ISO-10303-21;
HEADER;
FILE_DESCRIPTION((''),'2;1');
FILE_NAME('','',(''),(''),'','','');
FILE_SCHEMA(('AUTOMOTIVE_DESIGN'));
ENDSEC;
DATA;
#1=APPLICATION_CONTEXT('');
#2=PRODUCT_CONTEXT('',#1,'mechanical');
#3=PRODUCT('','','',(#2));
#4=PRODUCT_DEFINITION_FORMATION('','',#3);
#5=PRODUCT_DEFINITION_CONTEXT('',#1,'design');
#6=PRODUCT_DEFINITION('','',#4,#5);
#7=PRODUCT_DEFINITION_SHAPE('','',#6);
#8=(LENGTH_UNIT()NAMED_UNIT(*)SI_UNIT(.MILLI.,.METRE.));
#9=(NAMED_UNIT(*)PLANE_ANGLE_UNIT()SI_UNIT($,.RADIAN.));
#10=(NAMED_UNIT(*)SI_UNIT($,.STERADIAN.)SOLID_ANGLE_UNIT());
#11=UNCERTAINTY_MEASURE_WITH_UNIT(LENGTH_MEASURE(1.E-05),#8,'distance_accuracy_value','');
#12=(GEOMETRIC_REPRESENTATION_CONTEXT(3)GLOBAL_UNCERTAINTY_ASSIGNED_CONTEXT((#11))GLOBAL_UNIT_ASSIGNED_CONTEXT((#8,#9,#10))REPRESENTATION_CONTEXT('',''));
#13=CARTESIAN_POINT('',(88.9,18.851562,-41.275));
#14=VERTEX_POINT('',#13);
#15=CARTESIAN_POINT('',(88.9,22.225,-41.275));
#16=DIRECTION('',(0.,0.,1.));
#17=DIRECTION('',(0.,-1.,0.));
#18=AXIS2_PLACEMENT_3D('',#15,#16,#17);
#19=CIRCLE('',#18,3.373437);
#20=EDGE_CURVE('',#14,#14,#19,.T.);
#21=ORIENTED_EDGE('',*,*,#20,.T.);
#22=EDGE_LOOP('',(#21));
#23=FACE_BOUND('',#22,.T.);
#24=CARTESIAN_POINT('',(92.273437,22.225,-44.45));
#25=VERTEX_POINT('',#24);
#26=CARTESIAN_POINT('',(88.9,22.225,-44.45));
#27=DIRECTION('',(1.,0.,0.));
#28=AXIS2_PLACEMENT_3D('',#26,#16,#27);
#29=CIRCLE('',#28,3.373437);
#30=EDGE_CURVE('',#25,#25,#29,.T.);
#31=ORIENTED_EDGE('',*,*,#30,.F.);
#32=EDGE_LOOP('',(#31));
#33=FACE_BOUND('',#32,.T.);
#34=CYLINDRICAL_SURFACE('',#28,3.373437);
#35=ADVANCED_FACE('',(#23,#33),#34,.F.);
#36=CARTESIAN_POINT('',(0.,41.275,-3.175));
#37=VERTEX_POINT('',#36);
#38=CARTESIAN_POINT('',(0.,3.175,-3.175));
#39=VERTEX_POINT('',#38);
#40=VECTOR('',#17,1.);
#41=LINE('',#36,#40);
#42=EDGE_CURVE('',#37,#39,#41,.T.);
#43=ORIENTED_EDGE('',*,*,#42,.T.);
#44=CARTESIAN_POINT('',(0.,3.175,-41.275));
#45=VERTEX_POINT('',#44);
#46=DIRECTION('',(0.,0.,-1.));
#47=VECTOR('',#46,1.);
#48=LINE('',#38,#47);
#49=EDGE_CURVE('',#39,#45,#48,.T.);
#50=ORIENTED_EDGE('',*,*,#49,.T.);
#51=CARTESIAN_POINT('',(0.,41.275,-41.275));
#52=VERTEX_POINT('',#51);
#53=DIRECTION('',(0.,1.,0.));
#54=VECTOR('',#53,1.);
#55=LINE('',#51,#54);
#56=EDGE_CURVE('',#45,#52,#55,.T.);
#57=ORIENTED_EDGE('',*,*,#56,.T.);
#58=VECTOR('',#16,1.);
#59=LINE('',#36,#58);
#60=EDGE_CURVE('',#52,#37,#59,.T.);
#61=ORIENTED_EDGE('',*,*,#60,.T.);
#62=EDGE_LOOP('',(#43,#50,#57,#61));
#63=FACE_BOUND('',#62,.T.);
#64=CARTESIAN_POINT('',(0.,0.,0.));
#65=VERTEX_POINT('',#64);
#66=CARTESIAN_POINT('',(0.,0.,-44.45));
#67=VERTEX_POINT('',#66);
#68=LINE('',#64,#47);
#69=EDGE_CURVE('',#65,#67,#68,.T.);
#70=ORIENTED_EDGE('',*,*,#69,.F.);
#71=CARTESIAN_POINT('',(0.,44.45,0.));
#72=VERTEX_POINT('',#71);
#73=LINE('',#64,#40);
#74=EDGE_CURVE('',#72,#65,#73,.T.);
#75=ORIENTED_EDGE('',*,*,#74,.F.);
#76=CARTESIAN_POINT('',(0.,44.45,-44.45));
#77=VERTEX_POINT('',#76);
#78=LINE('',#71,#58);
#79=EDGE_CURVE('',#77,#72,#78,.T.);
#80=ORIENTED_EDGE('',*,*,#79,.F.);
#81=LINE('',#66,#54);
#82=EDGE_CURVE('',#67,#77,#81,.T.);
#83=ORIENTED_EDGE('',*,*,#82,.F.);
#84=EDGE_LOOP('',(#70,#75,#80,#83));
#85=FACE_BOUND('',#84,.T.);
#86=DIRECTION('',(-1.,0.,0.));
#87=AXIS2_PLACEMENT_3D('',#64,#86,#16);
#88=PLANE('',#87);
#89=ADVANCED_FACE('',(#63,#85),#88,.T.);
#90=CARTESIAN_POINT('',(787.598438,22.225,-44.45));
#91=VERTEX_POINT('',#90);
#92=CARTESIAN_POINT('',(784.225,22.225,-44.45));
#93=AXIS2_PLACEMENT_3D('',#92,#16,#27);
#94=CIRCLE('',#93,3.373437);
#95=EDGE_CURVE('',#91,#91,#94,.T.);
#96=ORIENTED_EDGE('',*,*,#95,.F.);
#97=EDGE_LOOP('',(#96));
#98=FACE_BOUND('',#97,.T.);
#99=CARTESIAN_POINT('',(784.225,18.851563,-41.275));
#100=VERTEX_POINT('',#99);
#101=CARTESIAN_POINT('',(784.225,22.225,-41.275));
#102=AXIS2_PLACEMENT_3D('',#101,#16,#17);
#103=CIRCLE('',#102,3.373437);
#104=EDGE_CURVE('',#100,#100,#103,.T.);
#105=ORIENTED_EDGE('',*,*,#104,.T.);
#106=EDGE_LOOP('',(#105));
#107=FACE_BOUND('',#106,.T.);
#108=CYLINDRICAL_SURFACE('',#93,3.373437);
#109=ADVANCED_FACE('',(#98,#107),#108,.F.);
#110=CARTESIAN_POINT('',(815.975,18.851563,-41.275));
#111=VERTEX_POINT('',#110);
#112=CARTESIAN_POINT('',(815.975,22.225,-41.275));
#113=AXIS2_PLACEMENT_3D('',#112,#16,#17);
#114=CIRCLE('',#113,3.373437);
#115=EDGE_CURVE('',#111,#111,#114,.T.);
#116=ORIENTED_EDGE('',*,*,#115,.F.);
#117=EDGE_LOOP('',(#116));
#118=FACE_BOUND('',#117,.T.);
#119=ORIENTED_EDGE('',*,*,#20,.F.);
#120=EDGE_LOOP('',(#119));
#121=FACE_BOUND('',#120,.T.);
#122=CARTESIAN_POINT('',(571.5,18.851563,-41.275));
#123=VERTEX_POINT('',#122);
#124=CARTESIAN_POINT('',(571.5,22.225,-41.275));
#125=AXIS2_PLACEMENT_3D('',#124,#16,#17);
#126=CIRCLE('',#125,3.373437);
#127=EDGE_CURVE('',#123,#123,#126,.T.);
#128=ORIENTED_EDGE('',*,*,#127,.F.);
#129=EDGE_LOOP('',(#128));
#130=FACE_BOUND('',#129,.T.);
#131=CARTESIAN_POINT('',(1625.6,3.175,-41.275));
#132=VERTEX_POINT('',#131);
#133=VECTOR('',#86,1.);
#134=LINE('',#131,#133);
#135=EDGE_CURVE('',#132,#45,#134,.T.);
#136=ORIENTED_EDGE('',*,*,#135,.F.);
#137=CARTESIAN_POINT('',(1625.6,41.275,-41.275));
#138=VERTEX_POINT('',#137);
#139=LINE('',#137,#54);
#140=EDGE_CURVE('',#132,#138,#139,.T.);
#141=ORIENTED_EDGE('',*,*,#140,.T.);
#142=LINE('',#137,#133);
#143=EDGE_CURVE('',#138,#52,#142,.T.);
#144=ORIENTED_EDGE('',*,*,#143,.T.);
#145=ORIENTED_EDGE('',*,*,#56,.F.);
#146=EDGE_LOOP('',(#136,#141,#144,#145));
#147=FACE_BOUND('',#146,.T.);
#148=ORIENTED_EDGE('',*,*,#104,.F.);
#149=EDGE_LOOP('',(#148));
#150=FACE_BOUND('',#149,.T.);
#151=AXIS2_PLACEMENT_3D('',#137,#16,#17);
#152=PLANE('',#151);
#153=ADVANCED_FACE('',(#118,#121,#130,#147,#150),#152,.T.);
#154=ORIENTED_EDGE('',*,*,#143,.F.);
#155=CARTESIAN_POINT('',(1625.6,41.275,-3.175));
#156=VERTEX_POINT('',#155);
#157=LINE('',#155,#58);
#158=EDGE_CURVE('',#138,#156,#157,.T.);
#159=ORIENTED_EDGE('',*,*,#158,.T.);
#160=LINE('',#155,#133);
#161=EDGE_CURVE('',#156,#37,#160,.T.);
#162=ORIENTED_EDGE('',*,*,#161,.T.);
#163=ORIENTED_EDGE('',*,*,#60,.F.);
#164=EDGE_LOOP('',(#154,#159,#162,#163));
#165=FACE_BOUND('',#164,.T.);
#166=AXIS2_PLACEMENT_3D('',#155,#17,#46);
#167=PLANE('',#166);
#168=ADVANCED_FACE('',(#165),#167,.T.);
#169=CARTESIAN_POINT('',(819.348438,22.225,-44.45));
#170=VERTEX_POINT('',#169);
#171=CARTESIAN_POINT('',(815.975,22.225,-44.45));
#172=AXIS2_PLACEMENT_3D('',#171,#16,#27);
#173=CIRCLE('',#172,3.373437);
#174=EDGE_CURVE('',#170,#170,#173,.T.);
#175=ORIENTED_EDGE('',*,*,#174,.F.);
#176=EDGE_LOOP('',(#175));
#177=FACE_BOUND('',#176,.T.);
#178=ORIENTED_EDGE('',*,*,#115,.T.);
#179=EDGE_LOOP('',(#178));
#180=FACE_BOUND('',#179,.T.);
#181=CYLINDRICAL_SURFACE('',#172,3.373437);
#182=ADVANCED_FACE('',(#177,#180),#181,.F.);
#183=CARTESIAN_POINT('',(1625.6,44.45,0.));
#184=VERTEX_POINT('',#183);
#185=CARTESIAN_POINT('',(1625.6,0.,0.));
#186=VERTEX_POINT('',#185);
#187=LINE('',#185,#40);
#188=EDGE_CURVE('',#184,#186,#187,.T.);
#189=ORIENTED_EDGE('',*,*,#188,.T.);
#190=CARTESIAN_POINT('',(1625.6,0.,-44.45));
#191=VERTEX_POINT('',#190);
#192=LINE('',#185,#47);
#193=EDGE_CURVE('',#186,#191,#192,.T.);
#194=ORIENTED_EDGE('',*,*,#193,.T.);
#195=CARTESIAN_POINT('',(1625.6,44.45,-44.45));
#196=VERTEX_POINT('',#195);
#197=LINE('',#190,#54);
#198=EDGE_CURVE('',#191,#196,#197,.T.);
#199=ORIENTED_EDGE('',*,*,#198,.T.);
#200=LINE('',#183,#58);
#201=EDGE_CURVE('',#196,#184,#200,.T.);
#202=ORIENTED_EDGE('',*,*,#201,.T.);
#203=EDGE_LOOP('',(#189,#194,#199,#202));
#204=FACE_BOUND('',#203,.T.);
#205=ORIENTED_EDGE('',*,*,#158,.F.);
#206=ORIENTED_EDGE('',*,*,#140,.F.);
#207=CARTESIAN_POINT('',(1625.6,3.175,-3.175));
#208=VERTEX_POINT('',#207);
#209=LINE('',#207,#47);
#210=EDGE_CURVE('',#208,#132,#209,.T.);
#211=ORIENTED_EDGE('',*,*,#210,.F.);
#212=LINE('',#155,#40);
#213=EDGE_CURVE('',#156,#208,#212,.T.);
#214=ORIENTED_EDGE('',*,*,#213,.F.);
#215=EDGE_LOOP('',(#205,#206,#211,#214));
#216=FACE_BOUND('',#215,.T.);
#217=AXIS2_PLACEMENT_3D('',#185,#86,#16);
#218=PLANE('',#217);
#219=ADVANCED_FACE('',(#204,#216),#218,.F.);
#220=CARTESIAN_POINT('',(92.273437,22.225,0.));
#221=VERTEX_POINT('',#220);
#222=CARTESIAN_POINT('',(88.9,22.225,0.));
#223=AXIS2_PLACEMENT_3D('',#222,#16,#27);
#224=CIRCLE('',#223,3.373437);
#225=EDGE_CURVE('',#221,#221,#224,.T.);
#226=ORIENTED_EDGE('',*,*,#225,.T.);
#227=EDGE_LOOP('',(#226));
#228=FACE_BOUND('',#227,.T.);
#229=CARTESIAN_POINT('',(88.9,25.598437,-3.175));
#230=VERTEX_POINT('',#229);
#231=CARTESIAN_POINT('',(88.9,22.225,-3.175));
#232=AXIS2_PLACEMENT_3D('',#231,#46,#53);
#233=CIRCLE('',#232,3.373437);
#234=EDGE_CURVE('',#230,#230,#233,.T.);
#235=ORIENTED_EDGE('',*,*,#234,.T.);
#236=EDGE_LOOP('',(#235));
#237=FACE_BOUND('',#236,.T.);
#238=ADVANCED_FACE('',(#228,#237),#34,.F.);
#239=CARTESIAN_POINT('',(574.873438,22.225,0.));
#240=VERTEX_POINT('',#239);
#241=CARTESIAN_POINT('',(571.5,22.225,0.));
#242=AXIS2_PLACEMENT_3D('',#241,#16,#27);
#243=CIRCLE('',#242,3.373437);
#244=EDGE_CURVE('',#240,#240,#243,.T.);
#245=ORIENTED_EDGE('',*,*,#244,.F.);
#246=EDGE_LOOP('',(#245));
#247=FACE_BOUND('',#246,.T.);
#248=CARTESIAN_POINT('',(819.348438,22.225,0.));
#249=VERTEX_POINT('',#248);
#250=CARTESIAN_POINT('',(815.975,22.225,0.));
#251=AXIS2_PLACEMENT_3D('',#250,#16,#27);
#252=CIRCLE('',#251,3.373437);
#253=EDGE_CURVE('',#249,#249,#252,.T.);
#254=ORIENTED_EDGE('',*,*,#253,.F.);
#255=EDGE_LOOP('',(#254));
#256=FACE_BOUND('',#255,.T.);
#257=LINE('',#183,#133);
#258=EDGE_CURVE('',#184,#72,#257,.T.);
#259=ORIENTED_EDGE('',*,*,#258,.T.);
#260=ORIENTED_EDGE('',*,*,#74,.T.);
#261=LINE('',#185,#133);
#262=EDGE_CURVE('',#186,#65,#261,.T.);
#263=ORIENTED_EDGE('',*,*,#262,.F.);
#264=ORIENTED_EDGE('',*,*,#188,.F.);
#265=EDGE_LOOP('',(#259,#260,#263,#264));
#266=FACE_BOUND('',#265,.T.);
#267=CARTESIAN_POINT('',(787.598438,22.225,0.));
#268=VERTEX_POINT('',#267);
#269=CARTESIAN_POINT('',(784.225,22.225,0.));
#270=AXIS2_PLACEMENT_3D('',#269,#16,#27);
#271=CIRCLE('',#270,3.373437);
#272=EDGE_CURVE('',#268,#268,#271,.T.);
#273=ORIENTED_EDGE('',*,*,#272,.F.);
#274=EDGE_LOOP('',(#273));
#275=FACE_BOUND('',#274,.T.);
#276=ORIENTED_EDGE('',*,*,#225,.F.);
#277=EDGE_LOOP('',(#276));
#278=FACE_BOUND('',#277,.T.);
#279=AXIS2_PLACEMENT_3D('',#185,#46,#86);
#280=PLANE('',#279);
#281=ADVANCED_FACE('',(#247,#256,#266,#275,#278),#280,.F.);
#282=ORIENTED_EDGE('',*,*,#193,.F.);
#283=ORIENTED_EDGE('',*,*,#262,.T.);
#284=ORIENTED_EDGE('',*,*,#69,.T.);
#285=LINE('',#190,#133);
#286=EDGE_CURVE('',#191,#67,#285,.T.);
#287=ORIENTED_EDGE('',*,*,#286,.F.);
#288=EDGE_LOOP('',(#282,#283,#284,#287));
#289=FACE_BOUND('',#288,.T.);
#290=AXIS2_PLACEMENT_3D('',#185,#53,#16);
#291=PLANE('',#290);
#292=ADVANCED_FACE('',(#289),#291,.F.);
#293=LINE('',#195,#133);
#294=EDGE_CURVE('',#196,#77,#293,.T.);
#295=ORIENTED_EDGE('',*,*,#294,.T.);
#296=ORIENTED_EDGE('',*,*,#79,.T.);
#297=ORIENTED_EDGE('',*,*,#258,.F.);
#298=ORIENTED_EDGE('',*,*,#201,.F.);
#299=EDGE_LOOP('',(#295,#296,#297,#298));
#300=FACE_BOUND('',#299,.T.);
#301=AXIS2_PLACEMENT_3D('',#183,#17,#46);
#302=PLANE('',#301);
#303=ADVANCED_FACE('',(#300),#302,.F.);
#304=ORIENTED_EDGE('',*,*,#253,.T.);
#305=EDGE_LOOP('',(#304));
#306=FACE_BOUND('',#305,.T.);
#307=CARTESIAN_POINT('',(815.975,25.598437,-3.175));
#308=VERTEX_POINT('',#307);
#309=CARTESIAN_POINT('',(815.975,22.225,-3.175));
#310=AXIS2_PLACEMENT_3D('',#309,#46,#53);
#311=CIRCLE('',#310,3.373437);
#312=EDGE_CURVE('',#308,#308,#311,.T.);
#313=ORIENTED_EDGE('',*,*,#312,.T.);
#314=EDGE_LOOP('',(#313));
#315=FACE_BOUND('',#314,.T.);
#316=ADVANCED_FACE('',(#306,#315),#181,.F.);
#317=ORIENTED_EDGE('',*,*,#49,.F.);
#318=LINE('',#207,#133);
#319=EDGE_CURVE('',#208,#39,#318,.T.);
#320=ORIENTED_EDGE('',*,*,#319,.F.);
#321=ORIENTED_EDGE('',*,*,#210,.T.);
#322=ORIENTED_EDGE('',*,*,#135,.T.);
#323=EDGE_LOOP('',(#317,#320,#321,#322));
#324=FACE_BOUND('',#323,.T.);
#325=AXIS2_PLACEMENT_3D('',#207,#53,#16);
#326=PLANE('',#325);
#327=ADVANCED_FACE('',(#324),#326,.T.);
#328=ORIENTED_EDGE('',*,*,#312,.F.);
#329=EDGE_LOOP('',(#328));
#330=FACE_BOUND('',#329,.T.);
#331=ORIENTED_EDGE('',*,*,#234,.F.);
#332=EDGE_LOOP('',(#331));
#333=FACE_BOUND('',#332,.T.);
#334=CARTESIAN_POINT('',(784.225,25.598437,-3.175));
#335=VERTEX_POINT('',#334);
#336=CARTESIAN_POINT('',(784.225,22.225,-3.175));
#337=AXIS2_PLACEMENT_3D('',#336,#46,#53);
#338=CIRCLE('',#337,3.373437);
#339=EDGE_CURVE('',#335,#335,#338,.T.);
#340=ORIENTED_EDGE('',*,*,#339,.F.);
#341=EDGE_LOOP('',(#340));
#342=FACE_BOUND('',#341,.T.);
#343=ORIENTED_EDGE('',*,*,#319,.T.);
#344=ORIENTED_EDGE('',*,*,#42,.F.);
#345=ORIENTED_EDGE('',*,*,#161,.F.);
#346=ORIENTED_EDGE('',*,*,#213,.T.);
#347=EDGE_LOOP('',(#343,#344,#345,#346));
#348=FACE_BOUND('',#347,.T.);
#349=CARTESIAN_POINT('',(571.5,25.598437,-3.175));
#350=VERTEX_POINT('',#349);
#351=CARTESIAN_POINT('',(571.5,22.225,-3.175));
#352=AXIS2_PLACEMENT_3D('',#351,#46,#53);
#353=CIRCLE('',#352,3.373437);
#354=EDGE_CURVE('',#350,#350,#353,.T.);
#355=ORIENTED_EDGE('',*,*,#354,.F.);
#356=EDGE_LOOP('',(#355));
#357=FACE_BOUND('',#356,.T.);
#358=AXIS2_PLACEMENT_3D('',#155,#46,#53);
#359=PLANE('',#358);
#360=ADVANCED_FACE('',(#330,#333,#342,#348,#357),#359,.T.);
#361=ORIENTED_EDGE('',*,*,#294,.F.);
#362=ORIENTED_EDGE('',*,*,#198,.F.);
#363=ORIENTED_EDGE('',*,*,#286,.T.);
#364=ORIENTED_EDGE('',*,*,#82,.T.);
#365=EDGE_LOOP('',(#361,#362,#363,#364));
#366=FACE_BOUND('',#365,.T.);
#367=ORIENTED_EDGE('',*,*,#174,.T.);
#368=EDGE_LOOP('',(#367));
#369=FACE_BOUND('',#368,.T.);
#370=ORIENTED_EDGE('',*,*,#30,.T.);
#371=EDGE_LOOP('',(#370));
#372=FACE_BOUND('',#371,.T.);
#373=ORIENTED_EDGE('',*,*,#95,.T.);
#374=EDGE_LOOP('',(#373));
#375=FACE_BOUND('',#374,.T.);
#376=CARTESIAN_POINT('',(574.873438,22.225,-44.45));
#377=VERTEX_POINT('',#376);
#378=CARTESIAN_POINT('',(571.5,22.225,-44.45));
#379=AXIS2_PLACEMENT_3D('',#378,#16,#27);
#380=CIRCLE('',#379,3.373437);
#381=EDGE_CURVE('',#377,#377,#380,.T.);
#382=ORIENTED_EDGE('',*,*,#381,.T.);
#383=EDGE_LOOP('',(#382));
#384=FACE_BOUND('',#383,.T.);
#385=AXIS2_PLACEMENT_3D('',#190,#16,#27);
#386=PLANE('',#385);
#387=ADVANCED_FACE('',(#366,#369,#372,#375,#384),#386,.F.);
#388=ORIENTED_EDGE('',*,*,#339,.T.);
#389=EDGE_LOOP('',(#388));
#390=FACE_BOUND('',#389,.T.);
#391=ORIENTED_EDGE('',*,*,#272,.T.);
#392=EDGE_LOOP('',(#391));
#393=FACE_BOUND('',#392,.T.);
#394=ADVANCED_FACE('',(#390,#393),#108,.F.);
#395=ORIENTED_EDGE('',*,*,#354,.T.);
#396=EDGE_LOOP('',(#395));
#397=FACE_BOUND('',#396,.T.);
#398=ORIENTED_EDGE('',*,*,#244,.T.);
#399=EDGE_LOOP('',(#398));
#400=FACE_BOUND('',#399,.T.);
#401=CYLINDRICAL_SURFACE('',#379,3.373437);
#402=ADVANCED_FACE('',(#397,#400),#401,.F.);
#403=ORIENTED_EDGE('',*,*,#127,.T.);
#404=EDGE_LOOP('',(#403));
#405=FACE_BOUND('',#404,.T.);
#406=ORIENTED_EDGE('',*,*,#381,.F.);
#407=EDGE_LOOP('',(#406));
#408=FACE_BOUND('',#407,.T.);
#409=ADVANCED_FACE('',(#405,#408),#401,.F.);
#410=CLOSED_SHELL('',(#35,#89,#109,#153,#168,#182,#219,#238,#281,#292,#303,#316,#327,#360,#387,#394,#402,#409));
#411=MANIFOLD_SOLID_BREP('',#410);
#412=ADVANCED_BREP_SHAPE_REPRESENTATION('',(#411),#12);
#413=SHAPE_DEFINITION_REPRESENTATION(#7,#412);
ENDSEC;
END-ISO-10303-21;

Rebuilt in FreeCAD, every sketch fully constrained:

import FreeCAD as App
import Part
import Sketcher

V = App.Vector
Q = App.Units.Quantity

doc = App.newDocument("Part")
params = doc.addObject("Spreadsheet::Sheet", "Params")
for row, (alias, value) in enumerate([
    ("sketch1_width", "1.5 in"),
    ("sketch1_width2", "1.75 in"),
    ("pad1_length", "64 in"),
    ("sketch2_diameter", "0.265625 in"),
], start=1):
    params.set(f"A{row}", alias)
    params.set(f"B{row}", "=" + value)
    params.setAlias(f"B{row}", alias)

body = doc.addObject("PartDesign::Body", "Body")

# Sketch on YZ plane
sketch1 = doc.addObject("Sketcher::SketchObject", "Sketch")
body.addObject(sketch1)
sketch1.AttachmentSupport = (doc.YZ_Plane, [""])
sketch1.MapMode = "FlatFace"
sketch1.addGeometry(Part.LineSegment(V(44.45, 0, 0), V(0, 0, 0)), False)
sketch1.addGeometry(Part.LineSegment(V(0, 0, 0), V(0, -44.45, 0)), False)
sketch1.addGeometry(Part.LineSegment(V(0, -44.45, 0), V(44.45, -44.45, 0)), False)
sketch1.addGeometry(Part.LineSegment(V(44.45, -44.45, 0), V(44.45, 0, 0)), False)
sketch1.addGeometry(Part.LineSegment(V(3.175, -41.275, 0), V(3.175, -3.175, 0)), False)
sketch1.addGeometry(Part.LineSegment(V(3.175, -3.175, 0), V(41.275, -3.175, 0)), False)
sketch1.addGeometry(Part.LineSegment(V(41.275, -3.175, 0), V(41.275, -41.275, 0)), False)
sketch1.addGeometry(Part.LineSegment(V(41.275, -41.275, 0), V(3.175, -41.275, 0)), False)
sketch1.addConstraint(Sketcher.Constraint("Coincident", 0, 2, 1, 1))
sketch1.addConstraint(Sketcher.Constraint("Coincident", 1, 2, 2, 1))
sketch1.addConstraint(Sketcher.Constraint("Coincident", 2, 2, 3, 1))
sketch1.addConstraint(Sketcher.Constraint("Coincident", 3, 2, 0, 1))
sketch1.addConstraint(Sketcher.Constraint("Coincident", 4, 2, 5, 1))
sketch1.addConstraint(Sketcher.Constraint("Coincident", 5, 2, 6, 1))
sketch1.addConstraint(Sketcher.Constraint("Coincident", 6, 2, 7, 1))
sketch1.addConstraint(Sketcher.Constraint("Coincident", 7, 2, 4, 1))
sketch1.addConstraint(Sketcher.Constraint("Horizontal", 0))
sketch1.addConstraint(Sketcher.Constraint("Vertical", 1))
sketch1.addConstraint(Sketcher.Constraint("Horizontal", 2))
sketch1.addConstraint(Sketcher.Constraint("Vertical", 3))
sketch1.addConstraint(Sketcher.Constraint("Vertical", 4))
sketch1.addConstraint(Sketcher.Constraint("Horizontal", 5))
sketch1.addConstraint(Sketcher.Constraint("Vertical", 6))
sketch1.addConstraint(Sketcher.Constraint("Horizontal", 7))
sketch1.addConstraint(Sketcher.Constraint("Coincident", 0, 2, -1, 1))
sketch1.addConstraint(Sketcher.Constraint("Equal", 2, 1))
sketch1.addConstraint(Sketcher.Constraint("Equal", 7, 4))
sketch1.addConstraint(Sketcher.Constraint("DistanceX", 5, 1, 5, 2, Q("1.5 in")))
sketch1.addConstraint(Sketcher.Constraint("DistanceX", 0, 2, 0, 1, Q("1.75 in")))
sketch1.addConstraint(Sketcher.Constraint("DistanceX", -1, 1, 4, 2, Q("0.125 in")))
sketch1.addConstraint(Sketcher.Constraint("DistanceY", 4, 2, -1, 1, Q("0.125 in")))
sketch1.setExpression("Constraints[19]", "Params.sketch1_width")
sketch1.setExpression("Constraints[20]", "Params.sketch1_width2")
pad1 = doc.addObject("PartDesign::Pad", "Pad")
body.addObject(pad1)
pad1.Profile = sketch1
pad1.setExpression("Length", "Params.pad1_length")

# Sketch on XY plane
sketch2 = doc.addObject("Sketcher::SketchObject", "Sketch001")
body.addObject(sketch2)
sketch2.AttachmentSupport = (doc.XY_Plane, [""])
sketch2.MapMode = "FlatFace"
sketch2.addGeometry(Part.Circle(V(784.225, 22.225, 0), V(0, 0, 1), 3.373438), False)
sketch2.addGeometry(Part.Circle(V(815.975, 22.225, 0), V(0, 0, 1), 3.373438), False)
sketch2.addGeometry(Part.Circle(V(571.5, 22.225, 0), V(0, 0, 1), 3.373438), False)
sketch2.addGeometry(Part.Circle(V(88.9, 22.225, 0), V(0, 0, 1), 3.373438), False)
sketch2.addConstraint(Sketcher.Constraint("Equal", 0, 1))
sketch2.addConstraint(Sketcher.Constraint("Equal", 1, 2))
sketch2.addConstraint(Sketcher.Constraint("Equal", 2, 3))
sketch2.addConstraint(Sketcher.Constraint("Horizontal", 0, 3, 1, 3))
sketch2.addConstraint(Sketcher.Constraint("Horizontal", 1, 3, 2, 3))
sketch2.addConstraint(Sketcher.Constraint("Horizontal", 2, 3, 3, 3))
sketch2.addConstraint(Sketcher.Constraint("Diameter", 0, Q("0.265625 in")))
sketch2.addConstraint(Sketcher.Constraint("DistanceX", 3, 3, 2, 3, Q("19 in")))
sketch2.addConstraint(Sketcher.Constraint("DistanceX", -1, 1, 2, 3, Q("22.5 in")))
sketch2.addConstraint(Sketcher.Constraint("DistanceX", 0, 3, 1, 3, Q("1.25 in")))
sketch2.addConstraint(Sketcher.Constraint("DistanceX", -1, 1, 0, 3, Q("30.875 in")))
sketch2.addConstraint(Sketcher.Constraint("DistanceY", -1, 1, 0, 3, Q("0.875 in")))
sketch2.setExpression("Constraints[6]", "Params.sketch2_diameter")
pocket1 = doc.addObject("PartDesign::Pocket", "Pocket")
body.addObject(pocket1)
pocket1.Profile = sketch2
pocket1.Type = "ThroughAll"

doc.recompute()
